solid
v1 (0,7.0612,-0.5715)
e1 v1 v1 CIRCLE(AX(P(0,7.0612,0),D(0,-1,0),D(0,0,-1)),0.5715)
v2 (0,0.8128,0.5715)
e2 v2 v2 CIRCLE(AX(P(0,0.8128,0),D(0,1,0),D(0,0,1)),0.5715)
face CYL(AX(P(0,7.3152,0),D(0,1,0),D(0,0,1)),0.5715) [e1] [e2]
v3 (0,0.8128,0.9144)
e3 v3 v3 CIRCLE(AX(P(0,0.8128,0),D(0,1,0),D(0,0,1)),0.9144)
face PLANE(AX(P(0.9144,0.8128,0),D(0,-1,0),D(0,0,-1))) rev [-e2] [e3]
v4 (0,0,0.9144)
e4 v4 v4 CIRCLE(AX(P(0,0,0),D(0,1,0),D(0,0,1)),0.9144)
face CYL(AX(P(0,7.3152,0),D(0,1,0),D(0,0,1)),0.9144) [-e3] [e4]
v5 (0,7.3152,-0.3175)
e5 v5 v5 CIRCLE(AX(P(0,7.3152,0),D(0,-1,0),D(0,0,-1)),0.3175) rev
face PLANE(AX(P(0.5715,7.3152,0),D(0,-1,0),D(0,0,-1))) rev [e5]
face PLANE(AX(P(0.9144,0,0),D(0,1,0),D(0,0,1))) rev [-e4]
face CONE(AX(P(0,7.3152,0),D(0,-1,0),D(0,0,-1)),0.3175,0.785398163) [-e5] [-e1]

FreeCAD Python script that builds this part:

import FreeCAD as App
import Part
import Sketcher

V = App.Vector
Q = App.Units.Quantity


def edges_at(feature, points):
    """Names of the edges that pass closest to the given points."""
    edges = feature.Shape.Edges
    near = lambda p: min(range(len(edges)), key=lambda i: edges[i].distToShape(Part.Vertex(*p))[0])
    return sorted({f"Edge{near(p) + 1}" for p in points})


def add_polygon(sketch, points):
    """Adds a closed chain of lines whose ends are joined by coincident constraints."""
    first, n = sketch.GeometryCount, len(points)
    for a, b in zip(points, points[1:] + points[:1]):
        sketch.addGeometry(Part.LineSegment(App.Vector(*a, 0), App.Vector(*b, 0)), False)
    for i in range(n):
        sketch.addConstraint(Sketcher.Constraint("Coincident", first + i, 2, first + (i + 1) % n, 1))

doc = App.newDocument("Part")
body = doc.addObject("PartDesign::Body", "Body")

sketch1 = body.newObject("Sketcher::SketchObject", "Sketch")
sketch1.AttachmentSupport = (doc.getObject("XY_Plane"), [""])
sketch1.MapMode = "FlatFace"
add_polygon(sketch1, [(0.91, 0.81), (0.57, 0.81), (0.57, 7.32), (0, 7.32), (0, 0), (0.91, 0)])
sketch1.addConstraint([
    Sketcher.Constraint("Horizontal", 0),
    Sketcher.Constraint("Vertical", 1),
    Sketcher.Constraint("Horizontal", 2),
    Sketcher.Constraint("Vertical", 3),
    Sketcher.Constraint("Horizontal", 4),
    Sketcher.Constraint("Vertical", 5),
    Sketcher.Constraint("Coincident", 3, 2, -1, 1),
    Sketcher.Constraint("DistanceX", 4, 1, 4, 2, Q("0.036 in")),
    Sketcher.Constraint("DistanceY", 1, 1, 1, 2, Q("0.256 in")),
    Sketcher.Constraint("DistanceY", 3, 2, 3, 1, Q("0.288 in")),
    Sketcher.Constraint("DistanceX", 0, 2, 0, 1, Q("0.0135 in")),
])
revolution = body.newObject("PartDesign::Revolution", "Revolution")
revolution.Profile = sketch1
revolution.ReferenceAxis = (sketch1, ["V_Axis"])
revolution.Angle = 360
doc.recompute()

chamfer = body.newObject("PartDesign::Chamfer", "Chamfer")
chamfer.Base = (revolution, edges_at(revolution, [(0, 7.315, -0.572)]))
chamfer.Size = Q("0.01 in")

doc.recompute()
